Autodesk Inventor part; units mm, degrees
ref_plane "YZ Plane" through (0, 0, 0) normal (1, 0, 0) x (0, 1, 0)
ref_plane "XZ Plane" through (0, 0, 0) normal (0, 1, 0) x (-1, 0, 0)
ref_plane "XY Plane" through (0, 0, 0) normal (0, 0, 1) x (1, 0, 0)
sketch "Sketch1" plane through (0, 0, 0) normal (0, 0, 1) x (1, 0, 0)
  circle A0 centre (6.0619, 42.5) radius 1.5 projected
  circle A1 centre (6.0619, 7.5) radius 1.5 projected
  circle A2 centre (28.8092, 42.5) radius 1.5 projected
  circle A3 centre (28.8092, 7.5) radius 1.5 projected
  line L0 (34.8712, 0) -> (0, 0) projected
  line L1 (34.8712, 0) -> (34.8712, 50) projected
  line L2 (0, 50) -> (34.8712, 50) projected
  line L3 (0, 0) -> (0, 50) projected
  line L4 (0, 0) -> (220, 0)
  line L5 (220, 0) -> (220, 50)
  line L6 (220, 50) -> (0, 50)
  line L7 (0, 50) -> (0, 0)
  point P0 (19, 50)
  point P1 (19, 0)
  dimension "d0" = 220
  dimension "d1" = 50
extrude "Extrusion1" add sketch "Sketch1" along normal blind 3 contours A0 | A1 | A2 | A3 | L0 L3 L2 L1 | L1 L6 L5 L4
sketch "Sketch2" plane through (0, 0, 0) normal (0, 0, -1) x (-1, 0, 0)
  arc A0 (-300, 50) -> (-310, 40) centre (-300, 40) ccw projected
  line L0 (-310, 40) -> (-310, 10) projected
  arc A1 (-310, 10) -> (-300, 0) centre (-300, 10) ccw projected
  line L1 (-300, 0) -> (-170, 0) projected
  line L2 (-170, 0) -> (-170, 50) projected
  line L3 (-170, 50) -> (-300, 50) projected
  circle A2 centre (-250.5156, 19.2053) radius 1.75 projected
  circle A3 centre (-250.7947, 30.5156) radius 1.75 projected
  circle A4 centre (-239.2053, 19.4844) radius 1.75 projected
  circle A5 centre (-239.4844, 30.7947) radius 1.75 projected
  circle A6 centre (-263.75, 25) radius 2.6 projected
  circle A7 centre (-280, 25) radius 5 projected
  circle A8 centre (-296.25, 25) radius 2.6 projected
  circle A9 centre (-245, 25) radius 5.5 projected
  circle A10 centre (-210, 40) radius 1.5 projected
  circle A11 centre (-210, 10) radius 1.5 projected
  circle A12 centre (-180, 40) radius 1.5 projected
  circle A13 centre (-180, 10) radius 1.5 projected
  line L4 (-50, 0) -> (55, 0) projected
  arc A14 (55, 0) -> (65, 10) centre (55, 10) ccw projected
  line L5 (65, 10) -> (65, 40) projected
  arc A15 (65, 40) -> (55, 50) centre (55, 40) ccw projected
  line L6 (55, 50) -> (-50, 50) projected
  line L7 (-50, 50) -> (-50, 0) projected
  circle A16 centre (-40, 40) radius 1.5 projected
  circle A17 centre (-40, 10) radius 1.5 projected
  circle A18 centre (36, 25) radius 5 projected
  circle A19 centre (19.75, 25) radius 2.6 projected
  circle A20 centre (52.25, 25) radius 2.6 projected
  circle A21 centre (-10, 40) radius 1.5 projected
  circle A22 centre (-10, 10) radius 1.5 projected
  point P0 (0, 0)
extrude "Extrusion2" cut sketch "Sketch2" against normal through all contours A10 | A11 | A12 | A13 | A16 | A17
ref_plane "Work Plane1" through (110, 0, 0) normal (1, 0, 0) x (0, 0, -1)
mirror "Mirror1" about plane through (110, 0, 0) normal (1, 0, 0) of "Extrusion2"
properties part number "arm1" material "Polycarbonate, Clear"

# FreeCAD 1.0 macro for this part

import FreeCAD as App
import Part
import Sketcher

V = App.Vector

doc = App.newDocument("Part")
body = doc.addObject("PartDesign::Body", "Body")

# Sketch on XY plane
sketch1 = body.newObject("Sketcher::SketchObject", "Sketch")
sketch1.AttachmentSupport = (doc.getObject("XY_Plane"), [""])
sketch1.MapMode = "FlatFace"
sketch1.addGeometry([
    Part.LineSegment(V(0, 0, 0), V(220, 0, 0)),
    Part.LineSegment(V(220, 0, 0), V(220, 50, 0)),
    Part.LineSegment(V(220, 50, 0), V(0, 50, 0)),
    Part.LineSegment(V(0, 50, 0), V(0, 0, 0)),
], False)
sketch1.addConstraint([
    Sketcher.Constraint("Coincident", 0, 2, 1, 1),
    Sketcher.Constraint("Coincident", 1, 2, 2, 1),
    Sketcher.Constraint("Coincident", 2, 2, 3, 1),
    Sketcher.Constraint("Coincident", 3, 2, 0, 1),
    Sketcher.Constraint("Horizontal", 0),
    Sketcher.Constraint("Vertical", 1),
    Sketcher.Constraint("Horizontal", 2),
    Sketcher.Constraint("Vertical", 3),
    Sketcher.Constraint("Coincident", 3, 2, -1, 1),
    Sketcher.Constraint("DistanceX", 0, 1, 0, 2, 220.0),
    Sketcher.Constraint("DistanceY", 1, 1, 1, 2, 50.0),
])
pad1 = body.newObject("PartDesign::Pad", "Pad")
pad1.Profile = sketch1
pad1.Length = 3

# Sketch on XY plane
sketch2 = body.newObject("Sketcher::SketchObject", "Sketch001")
sketch2.AttachmentSupport = (doc.getObject("XY_Plane"), [""])
sketch2.MapMode = "FlatFace"
sketch2.addGeometry([
    Part.Circle(V(210, 40, 0), V(0, 0, 1), 1.5),  # 0
    Part.Circle(V(210, 10, 0), V(0, 0, 1), 1.5),  # 1
    Part.Circle(V(180, 40, 0), V(0, 0, 1), 1.5),  # 2
    Part.Circle(V(180, 10, 0), V(0, 0, 1), 1.5),  # 3
    Part.Circle(V(40, 40, 0), V(0, 0, 1), 1.5),  # 4
    Part.Circle(V(40, 10, 0), V(0, 0, 1), 1.5),  # 5
], False)
sketch2.addConstraint([
    Sketcher.Constraint("Equal", 0, 1),
    Sketcher.Constraint("Equal", 1, 2),
    Sketcher.Constraint("Equal", 2, 3),
    Sketcher.Constraint("Equal", 3, 4),
    Sketcher.Constraint("Equal", 4, 5),
    Sketcher.Constraint("Horizontal", 0, 3, 2, 3),
    Sketcher.Constraint("Horizontal", 1, 3, 3, 3),
    Sketcher.Constraint("Horizontal", 2, 3, 4, 3),
    Sketcher.Constraint("Horizontal", 3, 3, 5, 3),
    Sketcher.Constraint("Vertical", 0, 3, 1, 3),
    Sketcher.Constraint("Vertical", 2, 3, 3, 3),
    Sketcher.Constraint("Vertical", 4, 3, 5, 3),
    Sketcher.Constraint("Diameter", 0, 3.0),
    Sketcher.Constraint("DistanceX", -1, 1, 0, 3, 210.0),
    Sketcher.Constraint("DistanceY", -1, 1, 0, 3, 40.0),
    Sketcher.Constraint("DistanceY", -1, 1, 1, 3, 10.0),
    Sketcher.Constraint("DistanceX", -1, 1, 2, 3, 180.0),
    Sketcher.Constraint("DistanceX", -1, 1, 4, 3, 40.0),
])
pocket1 = body.newObject("PartDesign::Pocket", "Pocket")
pocket1.Profile = sketch2
pocket1.Type = "ThroughAll"
pocket1.Reversed = True
doc.recompute()

datumplane = body.newObject("PartDesign::Plane", "DatumPlane")
datumplane.AttachmentSupport = (doc.getObject("YZ_Plane"), [""])
datumplane.MapMode = "FlatFace"
datumplane.AttachmentOffset = App.Placement(V(0, 0, 110), App.Rotation())
mirrored = body.newObject("PartDesign::Mirrored", "Mirrored")
mirrored.Originals = [pocket1]
mirrored.MirrorPlane = (datumplane, [""])
body.Tip = mirrored

doc.recompute()
